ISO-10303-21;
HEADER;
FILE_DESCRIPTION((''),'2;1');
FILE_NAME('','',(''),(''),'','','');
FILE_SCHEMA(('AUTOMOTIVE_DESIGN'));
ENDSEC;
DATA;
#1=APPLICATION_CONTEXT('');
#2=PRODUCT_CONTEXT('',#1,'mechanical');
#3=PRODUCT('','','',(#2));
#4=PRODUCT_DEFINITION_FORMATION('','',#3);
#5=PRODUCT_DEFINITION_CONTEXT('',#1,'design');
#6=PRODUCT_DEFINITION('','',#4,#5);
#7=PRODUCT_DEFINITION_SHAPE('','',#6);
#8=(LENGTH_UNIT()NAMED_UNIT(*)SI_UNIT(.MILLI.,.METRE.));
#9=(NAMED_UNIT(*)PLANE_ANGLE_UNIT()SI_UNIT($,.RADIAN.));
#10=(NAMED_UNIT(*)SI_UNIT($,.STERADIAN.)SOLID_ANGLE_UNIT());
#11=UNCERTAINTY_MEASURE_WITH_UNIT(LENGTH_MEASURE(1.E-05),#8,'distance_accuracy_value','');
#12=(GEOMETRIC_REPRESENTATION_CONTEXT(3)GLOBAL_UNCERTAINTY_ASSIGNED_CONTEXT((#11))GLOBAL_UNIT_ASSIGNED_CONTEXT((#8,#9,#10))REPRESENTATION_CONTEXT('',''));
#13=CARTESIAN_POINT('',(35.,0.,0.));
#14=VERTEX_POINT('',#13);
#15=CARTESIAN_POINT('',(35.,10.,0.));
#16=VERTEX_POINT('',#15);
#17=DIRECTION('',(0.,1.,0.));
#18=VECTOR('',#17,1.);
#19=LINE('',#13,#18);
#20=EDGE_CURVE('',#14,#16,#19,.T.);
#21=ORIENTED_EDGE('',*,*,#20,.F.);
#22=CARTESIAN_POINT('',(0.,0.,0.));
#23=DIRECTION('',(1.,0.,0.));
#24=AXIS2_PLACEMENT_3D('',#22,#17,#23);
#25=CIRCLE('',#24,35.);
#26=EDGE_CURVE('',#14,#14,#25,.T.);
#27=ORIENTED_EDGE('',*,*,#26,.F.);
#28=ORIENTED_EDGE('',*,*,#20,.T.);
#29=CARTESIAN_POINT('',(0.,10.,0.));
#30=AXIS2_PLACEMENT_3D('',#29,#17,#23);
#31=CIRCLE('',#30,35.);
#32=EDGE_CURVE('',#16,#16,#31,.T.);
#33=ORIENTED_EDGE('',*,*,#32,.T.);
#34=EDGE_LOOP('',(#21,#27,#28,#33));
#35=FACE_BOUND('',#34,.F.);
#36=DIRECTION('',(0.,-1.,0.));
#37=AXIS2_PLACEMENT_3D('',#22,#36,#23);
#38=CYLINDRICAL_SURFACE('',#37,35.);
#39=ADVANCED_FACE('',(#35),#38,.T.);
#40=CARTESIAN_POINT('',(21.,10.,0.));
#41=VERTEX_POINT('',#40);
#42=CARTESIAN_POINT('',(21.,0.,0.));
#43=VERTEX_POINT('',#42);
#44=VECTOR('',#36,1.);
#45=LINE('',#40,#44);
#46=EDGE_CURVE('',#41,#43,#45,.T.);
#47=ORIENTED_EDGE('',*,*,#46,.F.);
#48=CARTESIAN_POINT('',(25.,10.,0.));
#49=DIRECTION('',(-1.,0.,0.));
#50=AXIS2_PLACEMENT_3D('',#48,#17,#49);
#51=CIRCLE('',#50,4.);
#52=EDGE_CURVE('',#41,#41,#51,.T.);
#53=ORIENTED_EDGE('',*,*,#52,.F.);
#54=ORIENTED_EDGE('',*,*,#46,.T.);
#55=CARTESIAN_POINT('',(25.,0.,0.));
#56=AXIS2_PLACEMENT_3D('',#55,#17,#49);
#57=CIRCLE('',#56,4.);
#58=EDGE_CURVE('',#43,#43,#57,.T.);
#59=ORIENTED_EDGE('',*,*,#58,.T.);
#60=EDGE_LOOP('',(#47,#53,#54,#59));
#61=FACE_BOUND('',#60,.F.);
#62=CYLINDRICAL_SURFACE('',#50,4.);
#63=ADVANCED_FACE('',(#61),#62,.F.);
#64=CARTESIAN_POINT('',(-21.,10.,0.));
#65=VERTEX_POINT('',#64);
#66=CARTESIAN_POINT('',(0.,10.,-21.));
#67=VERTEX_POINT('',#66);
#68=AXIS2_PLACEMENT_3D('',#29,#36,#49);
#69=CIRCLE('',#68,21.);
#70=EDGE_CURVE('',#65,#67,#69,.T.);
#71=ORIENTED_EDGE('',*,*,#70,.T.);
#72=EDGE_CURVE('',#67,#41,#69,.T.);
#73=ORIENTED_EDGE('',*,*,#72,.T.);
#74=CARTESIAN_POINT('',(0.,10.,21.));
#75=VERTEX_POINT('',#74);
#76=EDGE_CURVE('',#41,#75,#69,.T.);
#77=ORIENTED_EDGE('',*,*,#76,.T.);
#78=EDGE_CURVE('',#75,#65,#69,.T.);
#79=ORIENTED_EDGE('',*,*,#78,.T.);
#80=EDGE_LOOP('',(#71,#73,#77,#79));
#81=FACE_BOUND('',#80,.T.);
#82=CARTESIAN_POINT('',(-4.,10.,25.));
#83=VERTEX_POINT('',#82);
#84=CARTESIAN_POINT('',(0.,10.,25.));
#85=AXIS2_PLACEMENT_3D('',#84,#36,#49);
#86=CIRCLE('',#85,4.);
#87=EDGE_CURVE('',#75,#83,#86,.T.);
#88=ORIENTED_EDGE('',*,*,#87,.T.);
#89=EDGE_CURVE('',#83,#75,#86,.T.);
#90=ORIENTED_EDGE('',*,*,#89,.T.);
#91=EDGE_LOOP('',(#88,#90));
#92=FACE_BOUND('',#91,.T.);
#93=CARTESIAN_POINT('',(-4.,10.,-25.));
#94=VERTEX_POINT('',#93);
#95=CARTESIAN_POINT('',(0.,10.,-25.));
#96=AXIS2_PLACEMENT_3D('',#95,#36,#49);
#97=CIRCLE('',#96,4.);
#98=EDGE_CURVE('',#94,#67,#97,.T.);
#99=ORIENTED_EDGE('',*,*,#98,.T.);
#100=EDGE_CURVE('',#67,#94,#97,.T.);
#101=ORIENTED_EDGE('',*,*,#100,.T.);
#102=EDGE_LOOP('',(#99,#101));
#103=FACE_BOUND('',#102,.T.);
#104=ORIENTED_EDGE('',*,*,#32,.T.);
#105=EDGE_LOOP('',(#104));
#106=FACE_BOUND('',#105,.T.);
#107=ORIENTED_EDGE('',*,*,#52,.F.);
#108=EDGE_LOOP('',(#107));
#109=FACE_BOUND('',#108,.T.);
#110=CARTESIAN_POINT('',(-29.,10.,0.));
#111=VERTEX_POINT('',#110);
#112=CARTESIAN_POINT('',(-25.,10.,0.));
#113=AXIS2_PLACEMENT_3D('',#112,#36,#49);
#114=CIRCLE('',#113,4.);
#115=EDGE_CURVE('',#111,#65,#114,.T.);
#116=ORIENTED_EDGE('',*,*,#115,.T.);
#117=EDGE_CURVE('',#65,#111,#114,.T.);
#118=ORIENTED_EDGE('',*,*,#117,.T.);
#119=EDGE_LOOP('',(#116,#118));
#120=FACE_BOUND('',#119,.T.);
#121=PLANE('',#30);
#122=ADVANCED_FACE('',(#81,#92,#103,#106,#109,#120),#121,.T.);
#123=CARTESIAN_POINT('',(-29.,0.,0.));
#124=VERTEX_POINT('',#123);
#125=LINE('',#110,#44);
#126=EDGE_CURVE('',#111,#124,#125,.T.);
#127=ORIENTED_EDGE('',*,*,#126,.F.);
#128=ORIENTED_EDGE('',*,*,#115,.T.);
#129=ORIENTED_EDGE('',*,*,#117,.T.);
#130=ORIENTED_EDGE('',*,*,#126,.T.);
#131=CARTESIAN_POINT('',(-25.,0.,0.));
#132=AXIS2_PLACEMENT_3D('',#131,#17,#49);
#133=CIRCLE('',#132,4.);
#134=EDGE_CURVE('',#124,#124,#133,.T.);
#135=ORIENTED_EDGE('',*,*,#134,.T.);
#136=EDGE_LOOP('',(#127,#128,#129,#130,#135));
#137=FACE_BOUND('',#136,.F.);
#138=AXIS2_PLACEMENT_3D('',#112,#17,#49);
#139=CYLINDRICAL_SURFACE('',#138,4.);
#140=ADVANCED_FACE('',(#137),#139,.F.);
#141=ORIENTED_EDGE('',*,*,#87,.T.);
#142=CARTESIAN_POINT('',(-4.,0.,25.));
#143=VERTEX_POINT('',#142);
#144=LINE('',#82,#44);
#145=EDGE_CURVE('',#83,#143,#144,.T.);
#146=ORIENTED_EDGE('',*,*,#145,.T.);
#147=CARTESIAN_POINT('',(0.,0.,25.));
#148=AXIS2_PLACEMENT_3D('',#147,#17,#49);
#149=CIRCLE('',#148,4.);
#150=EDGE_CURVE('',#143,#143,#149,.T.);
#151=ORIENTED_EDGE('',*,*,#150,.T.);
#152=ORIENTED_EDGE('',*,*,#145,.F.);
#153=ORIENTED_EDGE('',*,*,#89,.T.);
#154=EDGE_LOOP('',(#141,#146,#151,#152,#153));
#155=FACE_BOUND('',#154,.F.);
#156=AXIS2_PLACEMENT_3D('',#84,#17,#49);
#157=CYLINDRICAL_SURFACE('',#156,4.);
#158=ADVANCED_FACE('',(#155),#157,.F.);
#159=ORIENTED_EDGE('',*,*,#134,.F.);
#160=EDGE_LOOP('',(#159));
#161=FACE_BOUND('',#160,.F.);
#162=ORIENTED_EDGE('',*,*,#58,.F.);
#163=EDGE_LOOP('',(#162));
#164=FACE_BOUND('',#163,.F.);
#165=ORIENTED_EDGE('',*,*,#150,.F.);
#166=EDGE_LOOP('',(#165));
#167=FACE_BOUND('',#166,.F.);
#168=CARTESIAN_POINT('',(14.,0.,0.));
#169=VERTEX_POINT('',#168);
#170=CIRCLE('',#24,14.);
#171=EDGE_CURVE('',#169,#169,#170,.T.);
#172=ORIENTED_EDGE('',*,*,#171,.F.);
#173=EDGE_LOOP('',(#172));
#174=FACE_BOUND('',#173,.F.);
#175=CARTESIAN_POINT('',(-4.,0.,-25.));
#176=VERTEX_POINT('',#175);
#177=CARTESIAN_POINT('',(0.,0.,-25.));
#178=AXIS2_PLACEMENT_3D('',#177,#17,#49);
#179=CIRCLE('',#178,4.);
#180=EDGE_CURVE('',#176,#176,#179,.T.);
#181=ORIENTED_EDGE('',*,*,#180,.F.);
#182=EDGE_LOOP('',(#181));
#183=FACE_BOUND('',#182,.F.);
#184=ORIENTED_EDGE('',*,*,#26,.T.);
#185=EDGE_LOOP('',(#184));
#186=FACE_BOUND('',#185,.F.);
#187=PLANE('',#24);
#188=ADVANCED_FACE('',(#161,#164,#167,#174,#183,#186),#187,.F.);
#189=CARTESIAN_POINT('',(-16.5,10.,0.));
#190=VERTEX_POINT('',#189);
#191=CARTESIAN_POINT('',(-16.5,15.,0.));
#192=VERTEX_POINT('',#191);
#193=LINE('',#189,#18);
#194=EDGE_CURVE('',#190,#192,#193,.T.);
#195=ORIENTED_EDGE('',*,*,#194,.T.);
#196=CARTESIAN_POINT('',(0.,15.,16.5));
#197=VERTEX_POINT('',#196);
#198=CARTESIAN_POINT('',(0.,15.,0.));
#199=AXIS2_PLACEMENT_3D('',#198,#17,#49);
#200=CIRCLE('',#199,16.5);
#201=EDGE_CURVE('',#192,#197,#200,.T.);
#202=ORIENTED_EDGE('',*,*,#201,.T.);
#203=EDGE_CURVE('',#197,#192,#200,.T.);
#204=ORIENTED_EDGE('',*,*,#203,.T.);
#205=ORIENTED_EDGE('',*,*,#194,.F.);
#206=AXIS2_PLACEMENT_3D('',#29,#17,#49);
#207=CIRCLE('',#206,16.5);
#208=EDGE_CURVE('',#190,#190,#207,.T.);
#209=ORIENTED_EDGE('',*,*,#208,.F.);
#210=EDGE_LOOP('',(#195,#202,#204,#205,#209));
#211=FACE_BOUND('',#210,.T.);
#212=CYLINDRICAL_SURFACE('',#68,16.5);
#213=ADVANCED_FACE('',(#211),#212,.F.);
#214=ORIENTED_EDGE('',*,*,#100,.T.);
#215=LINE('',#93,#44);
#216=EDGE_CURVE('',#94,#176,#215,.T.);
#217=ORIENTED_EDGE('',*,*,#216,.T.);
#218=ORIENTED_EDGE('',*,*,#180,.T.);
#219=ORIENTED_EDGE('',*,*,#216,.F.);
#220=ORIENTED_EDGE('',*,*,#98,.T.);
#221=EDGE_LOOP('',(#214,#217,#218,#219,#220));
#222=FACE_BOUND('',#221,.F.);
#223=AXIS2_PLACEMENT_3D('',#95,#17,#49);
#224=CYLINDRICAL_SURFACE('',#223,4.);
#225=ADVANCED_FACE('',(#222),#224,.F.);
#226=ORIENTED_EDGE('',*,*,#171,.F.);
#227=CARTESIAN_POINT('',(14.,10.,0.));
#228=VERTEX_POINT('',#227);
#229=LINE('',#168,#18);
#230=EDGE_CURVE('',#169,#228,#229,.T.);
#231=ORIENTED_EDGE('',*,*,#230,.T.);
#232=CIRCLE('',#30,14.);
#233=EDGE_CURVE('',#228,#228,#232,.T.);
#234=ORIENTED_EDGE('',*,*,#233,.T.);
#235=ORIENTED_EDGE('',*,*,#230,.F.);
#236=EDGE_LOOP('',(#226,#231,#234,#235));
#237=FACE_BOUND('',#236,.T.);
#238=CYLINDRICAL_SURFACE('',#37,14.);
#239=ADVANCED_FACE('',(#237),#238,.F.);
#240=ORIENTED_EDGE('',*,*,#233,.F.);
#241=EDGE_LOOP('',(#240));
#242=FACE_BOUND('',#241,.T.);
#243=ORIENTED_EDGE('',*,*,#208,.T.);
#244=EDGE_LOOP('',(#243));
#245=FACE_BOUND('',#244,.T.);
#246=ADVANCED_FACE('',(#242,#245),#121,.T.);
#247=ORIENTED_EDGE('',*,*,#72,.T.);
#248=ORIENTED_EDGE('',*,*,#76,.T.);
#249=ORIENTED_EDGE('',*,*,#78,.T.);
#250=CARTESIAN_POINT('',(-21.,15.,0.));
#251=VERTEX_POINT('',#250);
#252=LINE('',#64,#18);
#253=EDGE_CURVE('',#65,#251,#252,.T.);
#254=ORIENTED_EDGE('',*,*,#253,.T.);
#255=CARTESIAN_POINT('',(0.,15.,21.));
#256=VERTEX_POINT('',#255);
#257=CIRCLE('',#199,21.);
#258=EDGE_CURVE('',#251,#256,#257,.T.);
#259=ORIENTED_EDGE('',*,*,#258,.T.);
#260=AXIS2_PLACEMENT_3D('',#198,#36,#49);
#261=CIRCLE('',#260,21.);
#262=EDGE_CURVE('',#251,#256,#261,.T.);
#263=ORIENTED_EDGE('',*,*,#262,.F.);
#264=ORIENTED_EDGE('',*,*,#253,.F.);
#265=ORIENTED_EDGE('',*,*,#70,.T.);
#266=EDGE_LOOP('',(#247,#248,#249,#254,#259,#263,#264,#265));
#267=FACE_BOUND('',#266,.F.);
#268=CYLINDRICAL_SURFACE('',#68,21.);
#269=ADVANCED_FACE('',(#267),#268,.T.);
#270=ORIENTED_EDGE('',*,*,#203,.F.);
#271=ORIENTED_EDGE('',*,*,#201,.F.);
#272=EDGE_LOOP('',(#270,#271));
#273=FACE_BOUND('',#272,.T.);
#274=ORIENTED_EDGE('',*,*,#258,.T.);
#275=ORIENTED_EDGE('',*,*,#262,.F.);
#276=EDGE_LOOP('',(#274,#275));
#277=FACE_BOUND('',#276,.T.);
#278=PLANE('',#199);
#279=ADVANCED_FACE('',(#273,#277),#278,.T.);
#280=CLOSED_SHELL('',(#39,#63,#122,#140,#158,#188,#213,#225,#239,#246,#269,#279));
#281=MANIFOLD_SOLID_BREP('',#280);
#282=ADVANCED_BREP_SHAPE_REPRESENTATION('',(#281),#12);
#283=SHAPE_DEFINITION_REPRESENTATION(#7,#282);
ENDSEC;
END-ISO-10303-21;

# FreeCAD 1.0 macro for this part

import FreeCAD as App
import Part
import Sketcher

V = App.Vector

doc = App.newDocument("Part")
body = doc.addObject("PartDesign::Body", "Body")

# Sketch on XZ plane
sketch1 = doc.addObject("Sketcher::SketchObject", "Sketch")
body.addObject(sketch1)
sketch1.AttachmentSupport = (doc.XZ_Plane, [""])
sketch1.MapMode = "FlatFace"
sketch1.addGeometry([
    Part.Circle(V(0, 0, 0), V(0, 0, 1), 35),
    Part.Circle(V(0, 0, 0), V(0, 0, 1), 14),
], False)
sketch1.addConstraint([
    Sketcher.Constraint("Coincident", 0, 3, -1, 1),
    Sketcher.Constraint("Coincident", 1, 3, -1, 1),
    Sketcher.Constraint("Diameter", 0, 70.0),
    Sketcher.Constraint("Diameter", 1, 28.0),
])
pad1 = doc.addObject("PartDesign::Pad", "Pad")
body.addObject(pad1)
pad1.Profile = sketch1
pad1.Length = 10
pad1.Reversed = True

# Sketch on XZ plane
sketch2 = doc.addObject("Sketcher::SketchObject", "Sketch001")
body.addObject(sketch2)
sketch2.AttachmentSupport = (doc.XZ_Plane, [""])
sketch2.MapMode = "FlatFace"
sketch2.AttachmentOffset = App.Placement(V(0, 0, -10), App.Rotation())
sketch2.addGeometry([
    Part.Circle(V(0, 0, 0), V(0, 0, 1), 21),
    Part.Circle(V(0, 0, 0), V(0, 0, 1), 16.5),
], False)
sketch2.addConstraint([
    Sketcher.Constraint("Coincident", 0, 3, -1, 1),
    Sketcher.Constraint("Coincident", 1, 3, -1, 1),
    Sketcher.Constraint("Diameter", 0, 42.0),
    Sketcher.Constraint("Diameter", 1, 33.0),
])
pad2 = doc.addObject("PartDesign::Pad", "Pad001")
body.addObject(pad2)
pad2.Profile = sketch2
pad2.Length = 5
pad2.Reversed = True

# Sketch on XZ plane
sketch3 = doc.addObject("Sketcher::SketchObject", "Sketch002")
body.addObject(sketch3)
sketch3.AttachmentSupport = (doc.XZ_Plane, [""])
sketch3.MapMode = "FlatFace"
sketch3.AttachmentOffset = App.Placement(V(0, 0, -10), App.Rotation())
sketch3.addGeometry([
    Part.Circle(V(0, 25, 0), V(0, 0, 1), 4),
    Part.Circle(V(-25, 0, 0), V(0, 0, 1), 4),
    Part.Circle(V(0, -25, 0), V(0, 0, 1), 4),
    Part.Circle(V(25, 0, 0), V(0, 0, 1), 4),
], False)
sketch3.addConstraint([
    Sketcher.Constraint("Equal", 0, 1),
    Sketcher.Constraint("Equal", 1, 2),
    Sketcher.Constraint("Equal", 2, 3),
    Sketcher.Constraint("Symmetric", 0, 3, 2, 3, -1, 1),
    Sketcher.Constraint("Symmetric", 1, 3, 3, 3, -1, 1),
    Sketcher.Constraint("PointOnObject", 0, 3, -2),
    Sketcher.Constraint("PointOnObject", 1, 3, -1),
    Sketcher.Constraint("Diameter", 0, 8.0),
    Sketcher.Constraint("DistanceY", 2, 3, 0, 3, 50.0),
    Sketcher.Constraint("DistanceX", 1, 3, 3, 3, 50.0),
])
pocket1 = doc.addObject("PartDesign::Pocket", "Pocket")
body.addObject(pocket1)
pocket1.Profile = sketch3
pocket1.Length = 10
pocket1.Reversed = True

doc.recompute()
